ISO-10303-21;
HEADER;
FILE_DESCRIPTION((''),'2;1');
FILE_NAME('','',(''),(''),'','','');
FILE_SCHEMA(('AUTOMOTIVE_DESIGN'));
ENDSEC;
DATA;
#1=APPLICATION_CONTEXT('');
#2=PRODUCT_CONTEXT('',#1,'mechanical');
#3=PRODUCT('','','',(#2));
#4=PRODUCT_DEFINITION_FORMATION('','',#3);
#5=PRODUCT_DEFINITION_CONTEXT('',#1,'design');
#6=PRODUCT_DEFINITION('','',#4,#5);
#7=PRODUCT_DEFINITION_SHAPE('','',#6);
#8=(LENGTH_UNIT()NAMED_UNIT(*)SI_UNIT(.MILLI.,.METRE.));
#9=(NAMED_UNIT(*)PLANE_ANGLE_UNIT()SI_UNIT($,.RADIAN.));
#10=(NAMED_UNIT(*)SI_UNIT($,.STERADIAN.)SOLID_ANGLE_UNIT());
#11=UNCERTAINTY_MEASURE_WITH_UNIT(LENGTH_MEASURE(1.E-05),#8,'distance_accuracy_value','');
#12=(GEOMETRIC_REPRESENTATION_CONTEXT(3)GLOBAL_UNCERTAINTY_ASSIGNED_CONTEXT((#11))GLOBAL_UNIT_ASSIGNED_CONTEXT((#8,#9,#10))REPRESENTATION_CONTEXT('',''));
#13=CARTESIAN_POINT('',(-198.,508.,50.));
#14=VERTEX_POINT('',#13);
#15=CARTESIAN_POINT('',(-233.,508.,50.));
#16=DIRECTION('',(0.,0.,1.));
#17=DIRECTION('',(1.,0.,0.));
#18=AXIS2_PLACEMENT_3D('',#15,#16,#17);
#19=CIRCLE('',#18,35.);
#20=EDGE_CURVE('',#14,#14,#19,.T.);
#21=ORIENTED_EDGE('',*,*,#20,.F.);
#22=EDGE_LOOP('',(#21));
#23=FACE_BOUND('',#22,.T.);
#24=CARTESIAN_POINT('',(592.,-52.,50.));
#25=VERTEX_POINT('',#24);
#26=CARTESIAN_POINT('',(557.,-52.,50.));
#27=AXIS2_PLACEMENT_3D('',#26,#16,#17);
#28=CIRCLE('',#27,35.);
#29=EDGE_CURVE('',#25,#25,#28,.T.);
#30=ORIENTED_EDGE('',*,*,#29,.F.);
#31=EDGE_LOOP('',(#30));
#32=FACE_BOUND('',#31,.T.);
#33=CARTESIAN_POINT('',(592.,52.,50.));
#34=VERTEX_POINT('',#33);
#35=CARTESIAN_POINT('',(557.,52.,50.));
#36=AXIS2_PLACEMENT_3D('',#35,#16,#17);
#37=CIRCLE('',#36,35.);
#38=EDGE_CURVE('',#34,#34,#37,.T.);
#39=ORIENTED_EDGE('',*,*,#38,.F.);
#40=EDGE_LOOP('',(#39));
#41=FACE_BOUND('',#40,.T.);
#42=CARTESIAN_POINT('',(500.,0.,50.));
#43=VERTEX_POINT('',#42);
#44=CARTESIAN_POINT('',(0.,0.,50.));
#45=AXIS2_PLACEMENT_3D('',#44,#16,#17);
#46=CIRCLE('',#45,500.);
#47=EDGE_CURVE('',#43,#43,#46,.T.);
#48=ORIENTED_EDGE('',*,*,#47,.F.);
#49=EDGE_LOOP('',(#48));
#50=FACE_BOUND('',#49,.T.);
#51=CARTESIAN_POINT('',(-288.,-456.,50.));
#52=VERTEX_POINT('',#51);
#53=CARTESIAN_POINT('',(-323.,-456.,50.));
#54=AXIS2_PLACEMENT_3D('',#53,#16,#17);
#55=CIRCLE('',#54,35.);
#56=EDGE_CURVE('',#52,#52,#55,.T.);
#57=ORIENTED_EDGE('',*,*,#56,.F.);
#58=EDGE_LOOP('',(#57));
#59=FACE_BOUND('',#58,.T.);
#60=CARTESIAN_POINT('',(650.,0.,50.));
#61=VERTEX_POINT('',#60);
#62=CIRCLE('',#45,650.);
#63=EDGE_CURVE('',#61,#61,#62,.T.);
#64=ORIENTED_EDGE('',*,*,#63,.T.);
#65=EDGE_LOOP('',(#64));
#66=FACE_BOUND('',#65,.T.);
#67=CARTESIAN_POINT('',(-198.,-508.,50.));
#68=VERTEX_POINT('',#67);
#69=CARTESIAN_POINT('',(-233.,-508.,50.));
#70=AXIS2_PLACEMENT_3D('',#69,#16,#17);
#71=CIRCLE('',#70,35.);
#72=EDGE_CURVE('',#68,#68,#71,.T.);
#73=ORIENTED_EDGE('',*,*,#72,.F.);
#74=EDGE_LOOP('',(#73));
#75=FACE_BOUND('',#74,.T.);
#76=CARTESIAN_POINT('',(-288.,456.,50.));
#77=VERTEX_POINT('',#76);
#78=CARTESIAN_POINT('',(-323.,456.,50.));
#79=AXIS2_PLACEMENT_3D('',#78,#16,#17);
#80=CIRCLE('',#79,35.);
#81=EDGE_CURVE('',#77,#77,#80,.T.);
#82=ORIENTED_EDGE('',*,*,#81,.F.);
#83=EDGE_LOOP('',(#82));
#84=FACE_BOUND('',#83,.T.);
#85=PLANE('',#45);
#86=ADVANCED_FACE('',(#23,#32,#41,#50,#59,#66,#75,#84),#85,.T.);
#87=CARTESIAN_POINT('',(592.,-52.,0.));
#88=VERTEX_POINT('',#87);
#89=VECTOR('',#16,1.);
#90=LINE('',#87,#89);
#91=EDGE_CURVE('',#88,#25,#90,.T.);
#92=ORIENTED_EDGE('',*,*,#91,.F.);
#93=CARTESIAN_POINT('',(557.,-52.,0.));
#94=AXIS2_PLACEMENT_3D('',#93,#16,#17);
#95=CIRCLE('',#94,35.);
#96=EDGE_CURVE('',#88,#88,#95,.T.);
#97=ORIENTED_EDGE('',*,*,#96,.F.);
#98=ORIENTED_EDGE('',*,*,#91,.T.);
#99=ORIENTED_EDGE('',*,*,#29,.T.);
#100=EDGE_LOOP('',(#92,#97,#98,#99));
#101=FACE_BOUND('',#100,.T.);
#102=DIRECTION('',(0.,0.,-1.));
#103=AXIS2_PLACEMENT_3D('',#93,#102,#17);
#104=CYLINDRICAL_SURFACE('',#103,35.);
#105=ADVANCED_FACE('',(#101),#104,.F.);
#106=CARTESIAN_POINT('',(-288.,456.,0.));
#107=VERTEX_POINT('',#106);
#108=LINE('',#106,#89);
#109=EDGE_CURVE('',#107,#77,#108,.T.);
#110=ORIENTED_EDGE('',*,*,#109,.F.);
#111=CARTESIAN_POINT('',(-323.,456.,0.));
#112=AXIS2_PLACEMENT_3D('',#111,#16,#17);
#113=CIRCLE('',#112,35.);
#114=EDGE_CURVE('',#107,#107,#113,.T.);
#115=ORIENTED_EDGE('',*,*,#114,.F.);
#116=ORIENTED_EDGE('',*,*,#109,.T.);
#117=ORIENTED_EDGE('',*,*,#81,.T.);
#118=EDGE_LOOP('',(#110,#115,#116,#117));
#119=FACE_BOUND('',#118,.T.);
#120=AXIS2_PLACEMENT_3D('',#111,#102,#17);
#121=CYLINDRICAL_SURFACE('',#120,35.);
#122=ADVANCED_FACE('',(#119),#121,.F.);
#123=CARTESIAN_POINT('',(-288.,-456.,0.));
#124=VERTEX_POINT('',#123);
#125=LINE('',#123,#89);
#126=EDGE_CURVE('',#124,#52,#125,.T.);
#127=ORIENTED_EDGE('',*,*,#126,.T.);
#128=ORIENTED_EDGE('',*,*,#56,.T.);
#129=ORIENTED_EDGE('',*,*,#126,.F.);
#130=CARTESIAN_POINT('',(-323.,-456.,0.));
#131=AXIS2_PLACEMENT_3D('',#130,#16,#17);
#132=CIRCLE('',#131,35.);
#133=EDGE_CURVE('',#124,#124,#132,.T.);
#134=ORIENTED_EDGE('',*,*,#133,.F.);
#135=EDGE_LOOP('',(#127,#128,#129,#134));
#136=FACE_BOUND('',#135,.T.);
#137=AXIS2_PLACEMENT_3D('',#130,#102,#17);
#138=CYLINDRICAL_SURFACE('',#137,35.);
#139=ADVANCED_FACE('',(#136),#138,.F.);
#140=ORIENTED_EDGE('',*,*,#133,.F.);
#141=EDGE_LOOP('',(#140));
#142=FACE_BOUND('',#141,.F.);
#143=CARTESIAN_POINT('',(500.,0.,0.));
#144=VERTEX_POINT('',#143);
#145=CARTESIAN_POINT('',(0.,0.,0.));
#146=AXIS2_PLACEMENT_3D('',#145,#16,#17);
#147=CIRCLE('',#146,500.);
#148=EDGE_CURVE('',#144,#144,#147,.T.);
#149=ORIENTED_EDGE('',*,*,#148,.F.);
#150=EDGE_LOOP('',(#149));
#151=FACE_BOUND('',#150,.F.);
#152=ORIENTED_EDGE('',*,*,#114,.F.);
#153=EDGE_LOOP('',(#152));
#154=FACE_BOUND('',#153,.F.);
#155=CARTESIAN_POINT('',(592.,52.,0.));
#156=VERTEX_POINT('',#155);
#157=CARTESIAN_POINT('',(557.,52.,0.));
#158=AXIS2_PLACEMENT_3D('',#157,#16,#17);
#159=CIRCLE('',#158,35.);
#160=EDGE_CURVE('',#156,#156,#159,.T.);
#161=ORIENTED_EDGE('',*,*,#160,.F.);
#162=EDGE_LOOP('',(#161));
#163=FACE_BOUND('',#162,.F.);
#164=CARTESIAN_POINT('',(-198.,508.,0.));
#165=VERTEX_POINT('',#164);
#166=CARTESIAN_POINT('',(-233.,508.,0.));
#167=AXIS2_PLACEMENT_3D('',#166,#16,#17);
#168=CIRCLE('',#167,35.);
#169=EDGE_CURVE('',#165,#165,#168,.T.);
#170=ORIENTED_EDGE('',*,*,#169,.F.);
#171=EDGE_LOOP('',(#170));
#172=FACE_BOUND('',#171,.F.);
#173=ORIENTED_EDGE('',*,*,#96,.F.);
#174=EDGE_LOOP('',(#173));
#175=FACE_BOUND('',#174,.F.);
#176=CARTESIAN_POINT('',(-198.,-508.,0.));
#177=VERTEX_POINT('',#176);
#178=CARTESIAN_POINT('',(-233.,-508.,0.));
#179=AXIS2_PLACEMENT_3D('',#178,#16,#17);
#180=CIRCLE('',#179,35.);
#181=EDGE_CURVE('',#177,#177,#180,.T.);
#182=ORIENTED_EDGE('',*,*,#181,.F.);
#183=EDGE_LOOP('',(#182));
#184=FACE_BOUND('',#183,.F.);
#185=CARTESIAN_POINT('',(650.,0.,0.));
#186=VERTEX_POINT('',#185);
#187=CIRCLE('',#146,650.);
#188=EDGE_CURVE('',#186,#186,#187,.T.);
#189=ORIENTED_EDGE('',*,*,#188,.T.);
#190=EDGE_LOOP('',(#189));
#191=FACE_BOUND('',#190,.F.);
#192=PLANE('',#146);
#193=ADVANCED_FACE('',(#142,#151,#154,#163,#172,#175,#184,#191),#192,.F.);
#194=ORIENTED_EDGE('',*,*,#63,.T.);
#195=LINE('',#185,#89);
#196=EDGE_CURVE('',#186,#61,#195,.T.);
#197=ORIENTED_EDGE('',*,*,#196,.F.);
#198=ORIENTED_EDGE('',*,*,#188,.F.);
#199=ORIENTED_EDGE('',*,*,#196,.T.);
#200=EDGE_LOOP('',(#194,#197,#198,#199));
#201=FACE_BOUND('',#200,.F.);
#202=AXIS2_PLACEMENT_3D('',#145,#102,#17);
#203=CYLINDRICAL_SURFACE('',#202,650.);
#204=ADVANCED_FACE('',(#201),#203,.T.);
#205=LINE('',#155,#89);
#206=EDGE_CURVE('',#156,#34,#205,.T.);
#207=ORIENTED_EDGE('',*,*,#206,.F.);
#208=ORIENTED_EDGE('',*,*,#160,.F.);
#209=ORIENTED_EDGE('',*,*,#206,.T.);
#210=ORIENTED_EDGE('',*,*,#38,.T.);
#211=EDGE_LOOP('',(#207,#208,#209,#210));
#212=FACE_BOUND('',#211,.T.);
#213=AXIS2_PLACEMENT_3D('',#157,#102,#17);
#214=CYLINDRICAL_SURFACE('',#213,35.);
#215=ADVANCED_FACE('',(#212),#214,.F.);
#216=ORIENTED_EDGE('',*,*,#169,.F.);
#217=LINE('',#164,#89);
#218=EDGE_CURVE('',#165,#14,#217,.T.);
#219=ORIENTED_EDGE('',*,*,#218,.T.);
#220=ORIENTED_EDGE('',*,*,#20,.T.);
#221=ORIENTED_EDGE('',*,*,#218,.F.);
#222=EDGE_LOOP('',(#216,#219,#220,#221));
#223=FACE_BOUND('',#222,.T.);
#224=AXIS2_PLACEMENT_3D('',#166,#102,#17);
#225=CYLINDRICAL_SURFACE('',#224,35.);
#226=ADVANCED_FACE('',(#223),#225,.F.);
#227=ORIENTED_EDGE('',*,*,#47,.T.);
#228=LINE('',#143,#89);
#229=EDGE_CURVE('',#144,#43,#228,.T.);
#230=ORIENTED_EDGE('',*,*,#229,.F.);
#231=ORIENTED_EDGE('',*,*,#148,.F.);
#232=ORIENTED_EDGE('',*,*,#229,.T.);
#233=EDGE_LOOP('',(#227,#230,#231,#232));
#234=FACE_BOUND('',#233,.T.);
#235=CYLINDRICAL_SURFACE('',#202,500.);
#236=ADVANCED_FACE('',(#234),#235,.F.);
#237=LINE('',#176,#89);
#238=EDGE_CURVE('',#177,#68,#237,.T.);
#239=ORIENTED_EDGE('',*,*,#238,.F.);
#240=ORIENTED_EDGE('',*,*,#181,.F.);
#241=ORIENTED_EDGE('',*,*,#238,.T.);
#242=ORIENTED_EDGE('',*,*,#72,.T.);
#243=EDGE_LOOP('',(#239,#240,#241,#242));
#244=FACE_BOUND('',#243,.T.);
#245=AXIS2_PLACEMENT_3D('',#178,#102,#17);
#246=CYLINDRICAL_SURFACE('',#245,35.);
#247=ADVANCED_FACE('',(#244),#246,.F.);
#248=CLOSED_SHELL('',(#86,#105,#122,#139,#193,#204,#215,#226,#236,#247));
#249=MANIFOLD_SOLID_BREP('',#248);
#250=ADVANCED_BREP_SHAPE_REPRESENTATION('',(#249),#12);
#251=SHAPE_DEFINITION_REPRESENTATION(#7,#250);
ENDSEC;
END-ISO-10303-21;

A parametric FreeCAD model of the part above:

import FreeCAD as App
import Part
import Sketcher

V = App.Vector

doc = App.newDocument("Part")
params = doc.addObject("Spreadsheet::Sheet", "Params")
for row, (alias, value) in enumerate([
    ("sketch1_diameter", "1300 mm"),
    ("sketch1_diameter2", "70 mm"),
    ("sketch1_diameter3", "1000 mm"),
    ("pad1_length", "50 mm"),
], start=1):
    params.set(f"A{row}", alias)
    params.set(f"B{row}", "=" + value)
    params.setAlias(f"B{row}", alias)

body = doc.addObject("PartDesign::Body", "Body")

# Sketch on XY plane
sketch1 = body.newObject("Sketcher::SketchObject", "Sketch")
sketch1.AttachmentSupport = (doc.getObject("XY_Plane"), [""])
sketch1.MapMode = "FlatFace"
sketch1.addGeometry(Part.Circle(V(0, 0, 0), V(0, 0, 1), 650), False)
sketch1.addGeometry(Part.Circle(V(-233, -508, 0), V(0, 0, 1), 35), False)
sketch1.addGeometry(Part.Circle(V(-323, -456, 0), V(0, 0, 1), 35), False)
sketch1.addGeometry(Part.Circle(V(557, -52, 0), V(0, 0, 1), 35), False)
sketch1.addGeometry(Part.Circle(V(0, 0, 0), V(0, 0, 1), 500), False)
sketch1.addGeometry(Part.Circle(V(-323, 456, 0), V(0, 0, 1), 35), False)
sketch1.addGeometry(Part.Circle(V(-233, 508, 0), V(0, 0, 1), 35), False)
sketch1.addGeometry(Part.Circle(V(557, 52, 0), V(0, 0, 1), 35), False)
sketch1.addConstraint(Sketcher.Constraint("Coincident", 0, 3, -1, 1))
sketch1.addConstraint(Sketcher.Constraint("Coincident", 4, 3, -1, 1))
sketch1.addConstraint(Sketcher.Constraint("Equal", 1, 2))
sketch1.addConstraint(Sketcher.Constraint("Equal", 2, 3))
sketch1.addConstraint(Sketcher.Constraint("Equal", 3, 5))
sketch1.addConstraint(Sketcher.Constraint("Equal", 5, 6))
sketch1.addConstraint(Sketcher.Constraint("Equal", 6, 7))
sketch1.addConstraint(Sketcher.Constraint("Symmetric", 2, 3, 5, 3, -1))
sketch1.addConstraint(Sketcher.Constraint("Symmetric", 1, 3, 6, 3, -1))
sketch1.addConstraint(Sketcher.Constraint("Symmetric", 3, 3, 7, 3, -1))
sketch1.addConstraint(Sketcher.Constraint("Diameter", 0, 1300.0))
sketch1.addConstraint(Sketcher.Constraint("Diameter", 1, 70.0))
sketch1.addConstraint(Sketcher.Constraint("Diameter", 4, 1000.0))
sketch1.addConstraint(Sketcher.Constraint("DistanceX", 1, 3, -1, 1, 233.0))
sketch1.addConstraint(Sketcher.Constraint("DistanceY", 1, 3, -1, 1, 508.0))
sketch1.addConstraint(Sketcher.Constraint("DistanceX", 2, 3, -1, 1, 323.0))
sketch1.addConstraint(Sketcher.Constraint("DistanceY", 2, 3, -1, 1, 456.0))
sketch1.addConstraint(Sketcher.Constraint("DistanceX", -1, 1, 3, 3, 557.0))
sketch1.addConstraint(Sketcher.Constraint("DistanceY", 3, 3, -1, 1, 52.0))
sketch1.setExpression("Constraints[10]", "Params.sketch1_diameter")
sketch1.setExpression("Constraints[11]", "Params.sketch1_diameter2")
sketch1.setExpression("Constraints[12]", "Params.sketch1_diameter3")
pad1 = body.newObject("PartDesign::Pad", "Pad")
pad1.Profile = sketch1
pad1.setExpression("Length", "Params.pad1_length")

doc.recompute()
